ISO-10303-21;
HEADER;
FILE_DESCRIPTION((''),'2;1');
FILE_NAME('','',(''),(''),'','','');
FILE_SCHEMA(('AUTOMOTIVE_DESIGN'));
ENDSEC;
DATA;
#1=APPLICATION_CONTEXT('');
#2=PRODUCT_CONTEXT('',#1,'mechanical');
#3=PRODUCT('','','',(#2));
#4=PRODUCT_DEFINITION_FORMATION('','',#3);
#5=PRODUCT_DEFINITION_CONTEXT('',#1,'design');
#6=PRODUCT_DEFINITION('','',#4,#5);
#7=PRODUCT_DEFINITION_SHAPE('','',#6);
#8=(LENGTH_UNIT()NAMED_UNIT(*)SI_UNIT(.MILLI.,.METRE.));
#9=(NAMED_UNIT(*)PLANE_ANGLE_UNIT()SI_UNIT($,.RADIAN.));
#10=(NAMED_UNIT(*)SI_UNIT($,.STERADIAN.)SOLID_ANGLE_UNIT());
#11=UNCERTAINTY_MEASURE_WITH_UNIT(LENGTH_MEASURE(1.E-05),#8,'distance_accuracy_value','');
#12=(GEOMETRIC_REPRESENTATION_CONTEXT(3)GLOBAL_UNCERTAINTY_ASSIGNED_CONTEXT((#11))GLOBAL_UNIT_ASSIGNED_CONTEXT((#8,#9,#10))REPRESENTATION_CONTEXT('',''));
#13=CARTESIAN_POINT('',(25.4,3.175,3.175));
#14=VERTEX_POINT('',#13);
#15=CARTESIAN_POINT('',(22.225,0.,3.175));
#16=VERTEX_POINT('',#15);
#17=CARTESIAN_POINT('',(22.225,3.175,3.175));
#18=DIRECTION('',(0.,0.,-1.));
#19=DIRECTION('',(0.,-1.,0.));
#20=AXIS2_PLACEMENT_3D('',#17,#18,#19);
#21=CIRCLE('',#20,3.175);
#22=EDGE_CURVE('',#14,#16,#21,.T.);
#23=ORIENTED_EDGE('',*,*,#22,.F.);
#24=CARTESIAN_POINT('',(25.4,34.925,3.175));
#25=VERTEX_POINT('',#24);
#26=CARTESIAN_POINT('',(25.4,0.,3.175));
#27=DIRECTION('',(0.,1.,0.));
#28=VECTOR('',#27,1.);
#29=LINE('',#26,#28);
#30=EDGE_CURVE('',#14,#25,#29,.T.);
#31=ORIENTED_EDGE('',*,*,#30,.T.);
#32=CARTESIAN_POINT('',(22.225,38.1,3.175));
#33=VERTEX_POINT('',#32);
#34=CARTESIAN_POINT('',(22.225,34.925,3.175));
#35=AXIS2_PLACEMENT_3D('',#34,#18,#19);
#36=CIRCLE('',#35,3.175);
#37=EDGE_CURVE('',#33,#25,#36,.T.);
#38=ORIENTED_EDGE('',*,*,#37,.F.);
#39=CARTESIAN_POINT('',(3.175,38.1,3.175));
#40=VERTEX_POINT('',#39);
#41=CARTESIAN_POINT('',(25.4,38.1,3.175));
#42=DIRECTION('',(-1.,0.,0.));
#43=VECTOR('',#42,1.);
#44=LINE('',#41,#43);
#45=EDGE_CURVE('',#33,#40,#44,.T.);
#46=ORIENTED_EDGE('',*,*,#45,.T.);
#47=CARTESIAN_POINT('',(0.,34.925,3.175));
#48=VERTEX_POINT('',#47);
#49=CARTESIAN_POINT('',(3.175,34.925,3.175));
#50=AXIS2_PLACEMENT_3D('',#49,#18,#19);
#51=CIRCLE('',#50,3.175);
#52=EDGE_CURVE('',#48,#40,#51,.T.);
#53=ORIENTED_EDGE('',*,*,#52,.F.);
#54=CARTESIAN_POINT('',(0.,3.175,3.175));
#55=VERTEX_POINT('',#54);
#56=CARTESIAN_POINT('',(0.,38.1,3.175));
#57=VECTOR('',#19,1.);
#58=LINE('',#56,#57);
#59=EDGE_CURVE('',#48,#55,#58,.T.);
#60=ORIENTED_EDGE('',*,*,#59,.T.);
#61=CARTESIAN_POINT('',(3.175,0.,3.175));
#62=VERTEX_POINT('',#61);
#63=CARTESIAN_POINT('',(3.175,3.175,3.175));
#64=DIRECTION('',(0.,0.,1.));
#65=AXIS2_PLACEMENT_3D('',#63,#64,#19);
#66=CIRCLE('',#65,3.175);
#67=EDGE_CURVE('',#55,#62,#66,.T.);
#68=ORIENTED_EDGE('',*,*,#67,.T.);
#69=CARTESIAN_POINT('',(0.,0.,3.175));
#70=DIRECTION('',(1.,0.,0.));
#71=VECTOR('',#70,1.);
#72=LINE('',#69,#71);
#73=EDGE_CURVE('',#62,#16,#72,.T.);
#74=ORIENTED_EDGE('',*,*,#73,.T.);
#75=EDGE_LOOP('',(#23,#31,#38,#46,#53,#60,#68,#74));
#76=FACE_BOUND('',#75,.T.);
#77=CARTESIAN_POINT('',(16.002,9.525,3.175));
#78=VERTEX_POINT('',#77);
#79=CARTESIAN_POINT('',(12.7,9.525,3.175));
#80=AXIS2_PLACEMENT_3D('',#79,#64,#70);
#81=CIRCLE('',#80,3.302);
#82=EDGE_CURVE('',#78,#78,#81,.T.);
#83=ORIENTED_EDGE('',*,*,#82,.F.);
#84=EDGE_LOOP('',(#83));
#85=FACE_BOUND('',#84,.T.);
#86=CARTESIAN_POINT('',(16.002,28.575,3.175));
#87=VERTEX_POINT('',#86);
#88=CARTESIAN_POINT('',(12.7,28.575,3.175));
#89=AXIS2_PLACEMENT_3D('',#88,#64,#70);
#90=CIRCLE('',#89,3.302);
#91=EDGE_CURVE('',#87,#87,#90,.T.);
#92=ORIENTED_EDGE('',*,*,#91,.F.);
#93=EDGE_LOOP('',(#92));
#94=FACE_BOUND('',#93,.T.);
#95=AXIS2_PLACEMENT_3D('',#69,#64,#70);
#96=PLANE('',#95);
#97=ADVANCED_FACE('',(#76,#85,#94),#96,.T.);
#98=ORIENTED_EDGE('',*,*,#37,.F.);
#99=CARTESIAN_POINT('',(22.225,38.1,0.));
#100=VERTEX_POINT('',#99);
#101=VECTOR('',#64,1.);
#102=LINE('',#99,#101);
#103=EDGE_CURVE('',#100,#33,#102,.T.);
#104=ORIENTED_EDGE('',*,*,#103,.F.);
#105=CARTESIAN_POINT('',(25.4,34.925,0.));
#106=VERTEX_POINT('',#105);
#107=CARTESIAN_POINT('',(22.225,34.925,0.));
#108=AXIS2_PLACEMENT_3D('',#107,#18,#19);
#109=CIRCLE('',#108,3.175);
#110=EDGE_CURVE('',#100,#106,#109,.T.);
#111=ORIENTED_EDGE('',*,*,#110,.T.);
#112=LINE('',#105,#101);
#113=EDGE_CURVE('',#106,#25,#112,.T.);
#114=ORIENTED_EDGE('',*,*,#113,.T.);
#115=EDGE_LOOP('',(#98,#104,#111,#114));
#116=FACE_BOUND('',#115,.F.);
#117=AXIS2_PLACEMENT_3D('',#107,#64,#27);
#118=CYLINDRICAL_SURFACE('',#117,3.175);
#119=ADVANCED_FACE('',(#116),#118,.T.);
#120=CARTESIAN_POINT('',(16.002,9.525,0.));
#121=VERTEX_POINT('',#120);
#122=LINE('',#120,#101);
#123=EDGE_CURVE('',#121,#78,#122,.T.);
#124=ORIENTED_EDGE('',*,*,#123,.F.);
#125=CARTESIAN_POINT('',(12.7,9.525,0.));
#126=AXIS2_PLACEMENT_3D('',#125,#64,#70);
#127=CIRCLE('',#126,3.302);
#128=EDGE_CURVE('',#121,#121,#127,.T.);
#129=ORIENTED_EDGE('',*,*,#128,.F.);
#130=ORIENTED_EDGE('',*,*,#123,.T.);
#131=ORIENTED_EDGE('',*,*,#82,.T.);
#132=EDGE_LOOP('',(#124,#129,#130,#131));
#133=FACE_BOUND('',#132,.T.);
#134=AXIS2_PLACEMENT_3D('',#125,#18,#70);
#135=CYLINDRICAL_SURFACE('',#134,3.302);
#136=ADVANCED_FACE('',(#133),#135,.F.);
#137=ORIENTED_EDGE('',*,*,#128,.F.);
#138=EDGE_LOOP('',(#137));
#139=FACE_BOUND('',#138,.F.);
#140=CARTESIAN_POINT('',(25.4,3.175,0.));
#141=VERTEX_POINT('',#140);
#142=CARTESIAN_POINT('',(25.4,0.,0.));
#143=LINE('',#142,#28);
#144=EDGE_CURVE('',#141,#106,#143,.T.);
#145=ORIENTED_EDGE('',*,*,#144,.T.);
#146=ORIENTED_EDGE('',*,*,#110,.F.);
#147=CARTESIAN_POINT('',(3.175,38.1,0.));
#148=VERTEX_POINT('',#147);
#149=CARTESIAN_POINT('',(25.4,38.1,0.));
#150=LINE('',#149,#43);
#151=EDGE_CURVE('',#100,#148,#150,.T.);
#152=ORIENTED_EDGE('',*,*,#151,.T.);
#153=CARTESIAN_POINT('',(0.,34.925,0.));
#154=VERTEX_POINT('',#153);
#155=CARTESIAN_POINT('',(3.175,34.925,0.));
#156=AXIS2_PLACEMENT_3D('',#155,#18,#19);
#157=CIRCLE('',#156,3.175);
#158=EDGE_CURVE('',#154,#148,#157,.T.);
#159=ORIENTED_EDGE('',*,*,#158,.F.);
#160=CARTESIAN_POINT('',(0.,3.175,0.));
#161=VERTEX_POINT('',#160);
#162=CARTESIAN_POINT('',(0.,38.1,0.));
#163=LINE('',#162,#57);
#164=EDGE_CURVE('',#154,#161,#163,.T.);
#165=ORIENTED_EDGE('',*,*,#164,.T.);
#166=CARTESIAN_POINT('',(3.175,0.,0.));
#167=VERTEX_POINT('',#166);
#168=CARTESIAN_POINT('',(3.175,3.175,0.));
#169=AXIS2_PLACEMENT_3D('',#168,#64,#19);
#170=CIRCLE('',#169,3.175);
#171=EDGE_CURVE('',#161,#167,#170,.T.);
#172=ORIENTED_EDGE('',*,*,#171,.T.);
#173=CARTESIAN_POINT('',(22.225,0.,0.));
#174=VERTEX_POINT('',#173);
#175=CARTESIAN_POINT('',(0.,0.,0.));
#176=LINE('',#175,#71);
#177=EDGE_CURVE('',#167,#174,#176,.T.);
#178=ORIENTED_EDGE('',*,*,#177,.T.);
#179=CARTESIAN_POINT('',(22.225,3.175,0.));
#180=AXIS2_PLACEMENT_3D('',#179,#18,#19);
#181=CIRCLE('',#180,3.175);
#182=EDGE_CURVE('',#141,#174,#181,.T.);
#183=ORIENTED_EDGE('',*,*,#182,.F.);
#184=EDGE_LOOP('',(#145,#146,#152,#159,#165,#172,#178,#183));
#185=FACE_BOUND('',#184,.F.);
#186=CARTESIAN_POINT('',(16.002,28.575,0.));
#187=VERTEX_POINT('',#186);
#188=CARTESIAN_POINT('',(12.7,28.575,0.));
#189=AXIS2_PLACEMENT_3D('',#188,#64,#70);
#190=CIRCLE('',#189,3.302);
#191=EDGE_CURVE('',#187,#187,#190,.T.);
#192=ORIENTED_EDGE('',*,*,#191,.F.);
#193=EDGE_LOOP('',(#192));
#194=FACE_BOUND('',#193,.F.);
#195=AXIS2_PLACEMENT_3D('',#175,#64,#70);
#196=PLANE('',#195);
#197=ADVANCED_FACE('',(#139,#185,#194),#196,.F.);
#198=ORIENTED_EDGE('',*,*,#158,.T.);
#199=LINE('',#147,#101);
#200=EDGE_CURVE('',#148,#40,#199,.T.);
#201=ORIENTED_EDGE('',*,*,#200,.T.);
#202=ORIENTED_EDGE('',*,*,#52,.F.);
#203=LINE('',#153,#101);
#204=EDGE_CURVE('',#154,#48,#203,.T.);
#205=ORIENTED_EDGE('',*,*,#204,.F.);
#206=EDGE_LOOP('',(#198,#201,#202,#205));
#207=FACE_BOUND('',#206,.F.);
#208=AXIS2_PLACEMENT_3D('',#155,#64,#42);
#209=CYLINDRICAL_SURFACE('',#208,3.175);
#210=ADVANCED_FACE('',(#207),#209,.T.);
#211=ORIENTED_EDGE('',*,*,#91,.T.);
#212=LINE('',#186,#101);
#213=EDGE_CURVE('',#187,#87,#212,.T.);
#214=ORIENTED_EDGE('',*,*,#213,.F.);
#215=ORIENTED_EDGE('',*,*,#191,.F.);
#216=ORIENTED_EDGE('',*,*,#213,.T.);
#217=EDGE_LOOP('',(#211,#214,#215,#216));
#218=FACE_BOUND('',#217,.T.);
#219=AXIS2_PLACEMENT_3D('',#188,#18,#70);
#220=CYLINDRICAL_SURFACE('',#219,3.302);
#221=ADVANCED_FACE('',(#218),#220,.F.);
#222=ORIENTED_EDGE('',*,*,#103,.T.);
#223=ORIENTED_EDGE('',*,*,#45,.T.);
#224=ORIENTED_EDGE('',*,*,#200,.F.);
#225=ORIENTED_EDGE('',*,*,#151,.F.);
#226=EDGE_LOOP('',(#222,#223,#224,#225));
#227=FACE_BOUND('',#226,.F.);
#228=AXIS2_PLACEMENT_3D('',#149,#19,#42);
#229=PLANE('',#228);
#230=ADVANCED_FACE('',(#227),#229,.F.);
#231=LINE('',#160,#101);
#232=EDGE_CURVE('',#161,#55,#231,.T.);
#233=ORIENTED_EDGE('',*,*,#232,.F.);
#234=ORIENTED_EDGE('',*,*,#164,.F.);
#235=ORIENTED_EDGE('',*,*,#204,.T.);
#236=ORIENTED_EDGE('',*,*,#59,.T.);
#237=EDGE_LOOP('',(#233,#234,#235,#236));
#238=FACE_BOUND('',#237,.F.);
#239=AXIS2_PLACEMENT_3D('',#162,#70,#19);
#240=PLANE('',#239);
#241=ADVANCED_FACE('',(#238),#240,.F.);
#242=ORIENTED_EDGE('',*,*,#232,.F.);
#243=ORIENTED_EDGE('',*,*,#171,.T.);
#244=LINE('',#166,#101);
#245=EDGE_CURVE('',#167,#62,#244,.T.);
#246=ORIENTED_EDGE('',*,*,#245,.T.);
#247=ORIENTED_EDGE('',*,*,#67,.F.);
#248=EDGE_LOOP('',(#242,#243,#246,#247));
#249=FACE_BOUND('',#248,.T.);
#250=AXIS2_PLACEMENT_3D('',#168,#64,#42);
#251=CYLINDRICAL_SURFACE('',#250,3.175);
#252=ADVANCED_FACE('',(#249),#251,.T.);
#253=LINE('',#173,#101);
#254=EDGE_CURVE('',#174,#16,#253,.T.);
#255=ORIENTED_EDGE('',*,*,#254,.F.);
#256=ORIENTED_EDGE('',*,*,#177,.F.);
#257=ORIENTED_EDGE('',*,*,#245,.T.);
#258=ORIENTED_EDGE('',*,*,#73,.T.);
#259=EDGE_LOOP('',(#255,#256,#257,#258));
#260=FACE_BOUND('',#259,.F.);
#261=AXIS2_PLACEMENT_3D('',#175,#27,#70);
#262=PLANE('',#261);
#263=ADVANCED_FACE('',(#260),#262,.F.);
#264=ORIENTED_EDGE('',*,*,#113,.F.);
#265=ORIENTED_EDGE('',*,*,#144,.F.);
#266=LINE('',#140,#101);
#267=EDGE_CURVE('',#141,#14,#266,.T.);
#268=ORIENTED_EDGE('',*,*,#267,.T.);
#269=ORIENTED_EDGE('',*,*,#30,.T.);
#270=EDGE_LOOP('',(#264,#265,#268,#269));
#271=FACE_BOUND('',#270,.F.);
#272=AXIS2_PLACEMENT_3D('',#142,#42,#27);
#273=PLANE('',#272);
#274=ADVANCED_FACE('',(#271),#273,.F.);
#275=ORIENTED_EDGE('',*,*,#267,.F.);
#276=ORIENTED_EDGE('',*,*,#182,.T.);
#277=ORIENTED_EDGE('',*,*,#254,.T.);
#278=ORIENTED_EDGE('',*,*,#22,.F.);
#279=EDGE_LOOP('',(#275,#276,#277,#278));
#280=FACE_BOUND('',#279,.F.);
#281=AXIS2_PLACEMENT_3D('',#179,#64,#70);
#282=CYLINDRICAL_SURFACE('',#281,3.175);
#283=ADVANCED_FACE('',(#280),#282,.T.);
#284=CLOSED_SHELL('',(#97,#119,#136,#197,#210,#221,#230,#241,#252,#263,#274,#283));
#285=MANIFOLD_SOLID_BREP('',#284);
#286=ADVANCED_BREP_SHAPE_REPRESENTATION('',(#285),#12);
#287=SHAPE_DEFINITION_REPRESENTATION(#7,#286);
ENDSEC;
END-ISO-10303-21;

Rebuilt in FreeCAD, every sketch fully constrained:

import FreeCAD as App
import Part
import Sketcher
Q = App.Units.Quantity


def edges_at(feature, points):
    """Names of the edges that pass closest to the given points."""
    edges = feature.Shape.Edges
    near = lambda p: min(range(len(edges)), key=lambda i: edges[i].distToShape(Part.Vertex(*p))[0])
    return sorted({f"Edge{near(p) + 1}" for p in points})


def add_polygon(sketch, points):
    """Adds a closed chain of lines whose ends are joined by coincident constraints."""
    first, n = sketch.GeometryCount, len(points)
    for a, b in zip(points, points[1:] + points[:1]):
        sketch.addGeometry(Part.LineSegment(App.Vector(*a, 0), App.Vector(*b, 0)), False)
    for i in range(n):
        sketch.addConstraint(Sketcher.Constraint("Coincident", first + i, 2, first + (i + 1) % n, 1))

doc = App.newDocument("Part")
body = doc.addObject("PartDesign::Body", "Body")

sketch1 = doc.addObject("Sketcher::SketchObject", "Sketch")
body.addObject(sketch1)
sketch1.AttachmentSupport = (doc.XY_Plane, [""])
sketch1.MapMode = "FlatFace"
add_polygon(sketch1, [(0, 38.1), (0, 0), (25.4, 0), (25.4, 38.1)])
sketch1.addGeometry(Part.Circle(App.Vector(12.7, 9.525, 0), App.Vector(0, 0, 1), 3.302), False)
sketch1.addGeometry(Part.Circle(App.Vector(12.7, 28.575, 0), App.Vector(0, 0, 1), 3.302), False)
sketch1.addConstraint([
    Sketcher.Constraint("Vertical", 0),
    Sketcher.Constraint("Horizontal", 1),
    Sketcher.Constraint("Vertical", 2),
    Sketcher.Constraint("Horizontal", 3),
    Sketcher.Constraint("Coincident", 0, 2, -1, 1),
    Sketcher.Constraint("Equal", 4, 5),
    Sketcher.Constraint("Vertical", 4, 3, 5, 3),
    Sketcher.Constraint("Diameter", 4, Q("0.26 in")),
    Sketcher.Constraint("DistanceX", 1, 1, 1, 2, Q("1 in")),
    Sketcher.Constraint("DistanceY", 0, 2, 0, 1, Q("1.5 in")),
    Sketcher.Constraint("DistanceY", 4, 3, 5, 3, Q("0.75 in")),
    Sketcher.Constraint("DistanceY", -1, 1, 4, 3, Q("0.375 in")),
    Sketcher.Constraint("DistanceX", -1, 1, 4, 3, Q("0.5 in")),
])
pad1 = doc.addObject("PartDesign::Pad", "Pad")
body.addObject(pad1)
pad1.Profile = sketch1
pad1.Length = Q("0.125 in")
doc.recompute()

fillet = doc.addObject("PartDesign::Fillet", "Fillet")
body.addObject(fillet)
fillet.Base = (pad1, edges_at(pad1, [
    (25.4, 38.1, 1.587),
    (0, 38.1, 1.587),
    (25.4, 0, 1.587),
    (0, 0, 1.587),
]))
fillet.Radius = Q("0.125 in")

doc.recompute()
